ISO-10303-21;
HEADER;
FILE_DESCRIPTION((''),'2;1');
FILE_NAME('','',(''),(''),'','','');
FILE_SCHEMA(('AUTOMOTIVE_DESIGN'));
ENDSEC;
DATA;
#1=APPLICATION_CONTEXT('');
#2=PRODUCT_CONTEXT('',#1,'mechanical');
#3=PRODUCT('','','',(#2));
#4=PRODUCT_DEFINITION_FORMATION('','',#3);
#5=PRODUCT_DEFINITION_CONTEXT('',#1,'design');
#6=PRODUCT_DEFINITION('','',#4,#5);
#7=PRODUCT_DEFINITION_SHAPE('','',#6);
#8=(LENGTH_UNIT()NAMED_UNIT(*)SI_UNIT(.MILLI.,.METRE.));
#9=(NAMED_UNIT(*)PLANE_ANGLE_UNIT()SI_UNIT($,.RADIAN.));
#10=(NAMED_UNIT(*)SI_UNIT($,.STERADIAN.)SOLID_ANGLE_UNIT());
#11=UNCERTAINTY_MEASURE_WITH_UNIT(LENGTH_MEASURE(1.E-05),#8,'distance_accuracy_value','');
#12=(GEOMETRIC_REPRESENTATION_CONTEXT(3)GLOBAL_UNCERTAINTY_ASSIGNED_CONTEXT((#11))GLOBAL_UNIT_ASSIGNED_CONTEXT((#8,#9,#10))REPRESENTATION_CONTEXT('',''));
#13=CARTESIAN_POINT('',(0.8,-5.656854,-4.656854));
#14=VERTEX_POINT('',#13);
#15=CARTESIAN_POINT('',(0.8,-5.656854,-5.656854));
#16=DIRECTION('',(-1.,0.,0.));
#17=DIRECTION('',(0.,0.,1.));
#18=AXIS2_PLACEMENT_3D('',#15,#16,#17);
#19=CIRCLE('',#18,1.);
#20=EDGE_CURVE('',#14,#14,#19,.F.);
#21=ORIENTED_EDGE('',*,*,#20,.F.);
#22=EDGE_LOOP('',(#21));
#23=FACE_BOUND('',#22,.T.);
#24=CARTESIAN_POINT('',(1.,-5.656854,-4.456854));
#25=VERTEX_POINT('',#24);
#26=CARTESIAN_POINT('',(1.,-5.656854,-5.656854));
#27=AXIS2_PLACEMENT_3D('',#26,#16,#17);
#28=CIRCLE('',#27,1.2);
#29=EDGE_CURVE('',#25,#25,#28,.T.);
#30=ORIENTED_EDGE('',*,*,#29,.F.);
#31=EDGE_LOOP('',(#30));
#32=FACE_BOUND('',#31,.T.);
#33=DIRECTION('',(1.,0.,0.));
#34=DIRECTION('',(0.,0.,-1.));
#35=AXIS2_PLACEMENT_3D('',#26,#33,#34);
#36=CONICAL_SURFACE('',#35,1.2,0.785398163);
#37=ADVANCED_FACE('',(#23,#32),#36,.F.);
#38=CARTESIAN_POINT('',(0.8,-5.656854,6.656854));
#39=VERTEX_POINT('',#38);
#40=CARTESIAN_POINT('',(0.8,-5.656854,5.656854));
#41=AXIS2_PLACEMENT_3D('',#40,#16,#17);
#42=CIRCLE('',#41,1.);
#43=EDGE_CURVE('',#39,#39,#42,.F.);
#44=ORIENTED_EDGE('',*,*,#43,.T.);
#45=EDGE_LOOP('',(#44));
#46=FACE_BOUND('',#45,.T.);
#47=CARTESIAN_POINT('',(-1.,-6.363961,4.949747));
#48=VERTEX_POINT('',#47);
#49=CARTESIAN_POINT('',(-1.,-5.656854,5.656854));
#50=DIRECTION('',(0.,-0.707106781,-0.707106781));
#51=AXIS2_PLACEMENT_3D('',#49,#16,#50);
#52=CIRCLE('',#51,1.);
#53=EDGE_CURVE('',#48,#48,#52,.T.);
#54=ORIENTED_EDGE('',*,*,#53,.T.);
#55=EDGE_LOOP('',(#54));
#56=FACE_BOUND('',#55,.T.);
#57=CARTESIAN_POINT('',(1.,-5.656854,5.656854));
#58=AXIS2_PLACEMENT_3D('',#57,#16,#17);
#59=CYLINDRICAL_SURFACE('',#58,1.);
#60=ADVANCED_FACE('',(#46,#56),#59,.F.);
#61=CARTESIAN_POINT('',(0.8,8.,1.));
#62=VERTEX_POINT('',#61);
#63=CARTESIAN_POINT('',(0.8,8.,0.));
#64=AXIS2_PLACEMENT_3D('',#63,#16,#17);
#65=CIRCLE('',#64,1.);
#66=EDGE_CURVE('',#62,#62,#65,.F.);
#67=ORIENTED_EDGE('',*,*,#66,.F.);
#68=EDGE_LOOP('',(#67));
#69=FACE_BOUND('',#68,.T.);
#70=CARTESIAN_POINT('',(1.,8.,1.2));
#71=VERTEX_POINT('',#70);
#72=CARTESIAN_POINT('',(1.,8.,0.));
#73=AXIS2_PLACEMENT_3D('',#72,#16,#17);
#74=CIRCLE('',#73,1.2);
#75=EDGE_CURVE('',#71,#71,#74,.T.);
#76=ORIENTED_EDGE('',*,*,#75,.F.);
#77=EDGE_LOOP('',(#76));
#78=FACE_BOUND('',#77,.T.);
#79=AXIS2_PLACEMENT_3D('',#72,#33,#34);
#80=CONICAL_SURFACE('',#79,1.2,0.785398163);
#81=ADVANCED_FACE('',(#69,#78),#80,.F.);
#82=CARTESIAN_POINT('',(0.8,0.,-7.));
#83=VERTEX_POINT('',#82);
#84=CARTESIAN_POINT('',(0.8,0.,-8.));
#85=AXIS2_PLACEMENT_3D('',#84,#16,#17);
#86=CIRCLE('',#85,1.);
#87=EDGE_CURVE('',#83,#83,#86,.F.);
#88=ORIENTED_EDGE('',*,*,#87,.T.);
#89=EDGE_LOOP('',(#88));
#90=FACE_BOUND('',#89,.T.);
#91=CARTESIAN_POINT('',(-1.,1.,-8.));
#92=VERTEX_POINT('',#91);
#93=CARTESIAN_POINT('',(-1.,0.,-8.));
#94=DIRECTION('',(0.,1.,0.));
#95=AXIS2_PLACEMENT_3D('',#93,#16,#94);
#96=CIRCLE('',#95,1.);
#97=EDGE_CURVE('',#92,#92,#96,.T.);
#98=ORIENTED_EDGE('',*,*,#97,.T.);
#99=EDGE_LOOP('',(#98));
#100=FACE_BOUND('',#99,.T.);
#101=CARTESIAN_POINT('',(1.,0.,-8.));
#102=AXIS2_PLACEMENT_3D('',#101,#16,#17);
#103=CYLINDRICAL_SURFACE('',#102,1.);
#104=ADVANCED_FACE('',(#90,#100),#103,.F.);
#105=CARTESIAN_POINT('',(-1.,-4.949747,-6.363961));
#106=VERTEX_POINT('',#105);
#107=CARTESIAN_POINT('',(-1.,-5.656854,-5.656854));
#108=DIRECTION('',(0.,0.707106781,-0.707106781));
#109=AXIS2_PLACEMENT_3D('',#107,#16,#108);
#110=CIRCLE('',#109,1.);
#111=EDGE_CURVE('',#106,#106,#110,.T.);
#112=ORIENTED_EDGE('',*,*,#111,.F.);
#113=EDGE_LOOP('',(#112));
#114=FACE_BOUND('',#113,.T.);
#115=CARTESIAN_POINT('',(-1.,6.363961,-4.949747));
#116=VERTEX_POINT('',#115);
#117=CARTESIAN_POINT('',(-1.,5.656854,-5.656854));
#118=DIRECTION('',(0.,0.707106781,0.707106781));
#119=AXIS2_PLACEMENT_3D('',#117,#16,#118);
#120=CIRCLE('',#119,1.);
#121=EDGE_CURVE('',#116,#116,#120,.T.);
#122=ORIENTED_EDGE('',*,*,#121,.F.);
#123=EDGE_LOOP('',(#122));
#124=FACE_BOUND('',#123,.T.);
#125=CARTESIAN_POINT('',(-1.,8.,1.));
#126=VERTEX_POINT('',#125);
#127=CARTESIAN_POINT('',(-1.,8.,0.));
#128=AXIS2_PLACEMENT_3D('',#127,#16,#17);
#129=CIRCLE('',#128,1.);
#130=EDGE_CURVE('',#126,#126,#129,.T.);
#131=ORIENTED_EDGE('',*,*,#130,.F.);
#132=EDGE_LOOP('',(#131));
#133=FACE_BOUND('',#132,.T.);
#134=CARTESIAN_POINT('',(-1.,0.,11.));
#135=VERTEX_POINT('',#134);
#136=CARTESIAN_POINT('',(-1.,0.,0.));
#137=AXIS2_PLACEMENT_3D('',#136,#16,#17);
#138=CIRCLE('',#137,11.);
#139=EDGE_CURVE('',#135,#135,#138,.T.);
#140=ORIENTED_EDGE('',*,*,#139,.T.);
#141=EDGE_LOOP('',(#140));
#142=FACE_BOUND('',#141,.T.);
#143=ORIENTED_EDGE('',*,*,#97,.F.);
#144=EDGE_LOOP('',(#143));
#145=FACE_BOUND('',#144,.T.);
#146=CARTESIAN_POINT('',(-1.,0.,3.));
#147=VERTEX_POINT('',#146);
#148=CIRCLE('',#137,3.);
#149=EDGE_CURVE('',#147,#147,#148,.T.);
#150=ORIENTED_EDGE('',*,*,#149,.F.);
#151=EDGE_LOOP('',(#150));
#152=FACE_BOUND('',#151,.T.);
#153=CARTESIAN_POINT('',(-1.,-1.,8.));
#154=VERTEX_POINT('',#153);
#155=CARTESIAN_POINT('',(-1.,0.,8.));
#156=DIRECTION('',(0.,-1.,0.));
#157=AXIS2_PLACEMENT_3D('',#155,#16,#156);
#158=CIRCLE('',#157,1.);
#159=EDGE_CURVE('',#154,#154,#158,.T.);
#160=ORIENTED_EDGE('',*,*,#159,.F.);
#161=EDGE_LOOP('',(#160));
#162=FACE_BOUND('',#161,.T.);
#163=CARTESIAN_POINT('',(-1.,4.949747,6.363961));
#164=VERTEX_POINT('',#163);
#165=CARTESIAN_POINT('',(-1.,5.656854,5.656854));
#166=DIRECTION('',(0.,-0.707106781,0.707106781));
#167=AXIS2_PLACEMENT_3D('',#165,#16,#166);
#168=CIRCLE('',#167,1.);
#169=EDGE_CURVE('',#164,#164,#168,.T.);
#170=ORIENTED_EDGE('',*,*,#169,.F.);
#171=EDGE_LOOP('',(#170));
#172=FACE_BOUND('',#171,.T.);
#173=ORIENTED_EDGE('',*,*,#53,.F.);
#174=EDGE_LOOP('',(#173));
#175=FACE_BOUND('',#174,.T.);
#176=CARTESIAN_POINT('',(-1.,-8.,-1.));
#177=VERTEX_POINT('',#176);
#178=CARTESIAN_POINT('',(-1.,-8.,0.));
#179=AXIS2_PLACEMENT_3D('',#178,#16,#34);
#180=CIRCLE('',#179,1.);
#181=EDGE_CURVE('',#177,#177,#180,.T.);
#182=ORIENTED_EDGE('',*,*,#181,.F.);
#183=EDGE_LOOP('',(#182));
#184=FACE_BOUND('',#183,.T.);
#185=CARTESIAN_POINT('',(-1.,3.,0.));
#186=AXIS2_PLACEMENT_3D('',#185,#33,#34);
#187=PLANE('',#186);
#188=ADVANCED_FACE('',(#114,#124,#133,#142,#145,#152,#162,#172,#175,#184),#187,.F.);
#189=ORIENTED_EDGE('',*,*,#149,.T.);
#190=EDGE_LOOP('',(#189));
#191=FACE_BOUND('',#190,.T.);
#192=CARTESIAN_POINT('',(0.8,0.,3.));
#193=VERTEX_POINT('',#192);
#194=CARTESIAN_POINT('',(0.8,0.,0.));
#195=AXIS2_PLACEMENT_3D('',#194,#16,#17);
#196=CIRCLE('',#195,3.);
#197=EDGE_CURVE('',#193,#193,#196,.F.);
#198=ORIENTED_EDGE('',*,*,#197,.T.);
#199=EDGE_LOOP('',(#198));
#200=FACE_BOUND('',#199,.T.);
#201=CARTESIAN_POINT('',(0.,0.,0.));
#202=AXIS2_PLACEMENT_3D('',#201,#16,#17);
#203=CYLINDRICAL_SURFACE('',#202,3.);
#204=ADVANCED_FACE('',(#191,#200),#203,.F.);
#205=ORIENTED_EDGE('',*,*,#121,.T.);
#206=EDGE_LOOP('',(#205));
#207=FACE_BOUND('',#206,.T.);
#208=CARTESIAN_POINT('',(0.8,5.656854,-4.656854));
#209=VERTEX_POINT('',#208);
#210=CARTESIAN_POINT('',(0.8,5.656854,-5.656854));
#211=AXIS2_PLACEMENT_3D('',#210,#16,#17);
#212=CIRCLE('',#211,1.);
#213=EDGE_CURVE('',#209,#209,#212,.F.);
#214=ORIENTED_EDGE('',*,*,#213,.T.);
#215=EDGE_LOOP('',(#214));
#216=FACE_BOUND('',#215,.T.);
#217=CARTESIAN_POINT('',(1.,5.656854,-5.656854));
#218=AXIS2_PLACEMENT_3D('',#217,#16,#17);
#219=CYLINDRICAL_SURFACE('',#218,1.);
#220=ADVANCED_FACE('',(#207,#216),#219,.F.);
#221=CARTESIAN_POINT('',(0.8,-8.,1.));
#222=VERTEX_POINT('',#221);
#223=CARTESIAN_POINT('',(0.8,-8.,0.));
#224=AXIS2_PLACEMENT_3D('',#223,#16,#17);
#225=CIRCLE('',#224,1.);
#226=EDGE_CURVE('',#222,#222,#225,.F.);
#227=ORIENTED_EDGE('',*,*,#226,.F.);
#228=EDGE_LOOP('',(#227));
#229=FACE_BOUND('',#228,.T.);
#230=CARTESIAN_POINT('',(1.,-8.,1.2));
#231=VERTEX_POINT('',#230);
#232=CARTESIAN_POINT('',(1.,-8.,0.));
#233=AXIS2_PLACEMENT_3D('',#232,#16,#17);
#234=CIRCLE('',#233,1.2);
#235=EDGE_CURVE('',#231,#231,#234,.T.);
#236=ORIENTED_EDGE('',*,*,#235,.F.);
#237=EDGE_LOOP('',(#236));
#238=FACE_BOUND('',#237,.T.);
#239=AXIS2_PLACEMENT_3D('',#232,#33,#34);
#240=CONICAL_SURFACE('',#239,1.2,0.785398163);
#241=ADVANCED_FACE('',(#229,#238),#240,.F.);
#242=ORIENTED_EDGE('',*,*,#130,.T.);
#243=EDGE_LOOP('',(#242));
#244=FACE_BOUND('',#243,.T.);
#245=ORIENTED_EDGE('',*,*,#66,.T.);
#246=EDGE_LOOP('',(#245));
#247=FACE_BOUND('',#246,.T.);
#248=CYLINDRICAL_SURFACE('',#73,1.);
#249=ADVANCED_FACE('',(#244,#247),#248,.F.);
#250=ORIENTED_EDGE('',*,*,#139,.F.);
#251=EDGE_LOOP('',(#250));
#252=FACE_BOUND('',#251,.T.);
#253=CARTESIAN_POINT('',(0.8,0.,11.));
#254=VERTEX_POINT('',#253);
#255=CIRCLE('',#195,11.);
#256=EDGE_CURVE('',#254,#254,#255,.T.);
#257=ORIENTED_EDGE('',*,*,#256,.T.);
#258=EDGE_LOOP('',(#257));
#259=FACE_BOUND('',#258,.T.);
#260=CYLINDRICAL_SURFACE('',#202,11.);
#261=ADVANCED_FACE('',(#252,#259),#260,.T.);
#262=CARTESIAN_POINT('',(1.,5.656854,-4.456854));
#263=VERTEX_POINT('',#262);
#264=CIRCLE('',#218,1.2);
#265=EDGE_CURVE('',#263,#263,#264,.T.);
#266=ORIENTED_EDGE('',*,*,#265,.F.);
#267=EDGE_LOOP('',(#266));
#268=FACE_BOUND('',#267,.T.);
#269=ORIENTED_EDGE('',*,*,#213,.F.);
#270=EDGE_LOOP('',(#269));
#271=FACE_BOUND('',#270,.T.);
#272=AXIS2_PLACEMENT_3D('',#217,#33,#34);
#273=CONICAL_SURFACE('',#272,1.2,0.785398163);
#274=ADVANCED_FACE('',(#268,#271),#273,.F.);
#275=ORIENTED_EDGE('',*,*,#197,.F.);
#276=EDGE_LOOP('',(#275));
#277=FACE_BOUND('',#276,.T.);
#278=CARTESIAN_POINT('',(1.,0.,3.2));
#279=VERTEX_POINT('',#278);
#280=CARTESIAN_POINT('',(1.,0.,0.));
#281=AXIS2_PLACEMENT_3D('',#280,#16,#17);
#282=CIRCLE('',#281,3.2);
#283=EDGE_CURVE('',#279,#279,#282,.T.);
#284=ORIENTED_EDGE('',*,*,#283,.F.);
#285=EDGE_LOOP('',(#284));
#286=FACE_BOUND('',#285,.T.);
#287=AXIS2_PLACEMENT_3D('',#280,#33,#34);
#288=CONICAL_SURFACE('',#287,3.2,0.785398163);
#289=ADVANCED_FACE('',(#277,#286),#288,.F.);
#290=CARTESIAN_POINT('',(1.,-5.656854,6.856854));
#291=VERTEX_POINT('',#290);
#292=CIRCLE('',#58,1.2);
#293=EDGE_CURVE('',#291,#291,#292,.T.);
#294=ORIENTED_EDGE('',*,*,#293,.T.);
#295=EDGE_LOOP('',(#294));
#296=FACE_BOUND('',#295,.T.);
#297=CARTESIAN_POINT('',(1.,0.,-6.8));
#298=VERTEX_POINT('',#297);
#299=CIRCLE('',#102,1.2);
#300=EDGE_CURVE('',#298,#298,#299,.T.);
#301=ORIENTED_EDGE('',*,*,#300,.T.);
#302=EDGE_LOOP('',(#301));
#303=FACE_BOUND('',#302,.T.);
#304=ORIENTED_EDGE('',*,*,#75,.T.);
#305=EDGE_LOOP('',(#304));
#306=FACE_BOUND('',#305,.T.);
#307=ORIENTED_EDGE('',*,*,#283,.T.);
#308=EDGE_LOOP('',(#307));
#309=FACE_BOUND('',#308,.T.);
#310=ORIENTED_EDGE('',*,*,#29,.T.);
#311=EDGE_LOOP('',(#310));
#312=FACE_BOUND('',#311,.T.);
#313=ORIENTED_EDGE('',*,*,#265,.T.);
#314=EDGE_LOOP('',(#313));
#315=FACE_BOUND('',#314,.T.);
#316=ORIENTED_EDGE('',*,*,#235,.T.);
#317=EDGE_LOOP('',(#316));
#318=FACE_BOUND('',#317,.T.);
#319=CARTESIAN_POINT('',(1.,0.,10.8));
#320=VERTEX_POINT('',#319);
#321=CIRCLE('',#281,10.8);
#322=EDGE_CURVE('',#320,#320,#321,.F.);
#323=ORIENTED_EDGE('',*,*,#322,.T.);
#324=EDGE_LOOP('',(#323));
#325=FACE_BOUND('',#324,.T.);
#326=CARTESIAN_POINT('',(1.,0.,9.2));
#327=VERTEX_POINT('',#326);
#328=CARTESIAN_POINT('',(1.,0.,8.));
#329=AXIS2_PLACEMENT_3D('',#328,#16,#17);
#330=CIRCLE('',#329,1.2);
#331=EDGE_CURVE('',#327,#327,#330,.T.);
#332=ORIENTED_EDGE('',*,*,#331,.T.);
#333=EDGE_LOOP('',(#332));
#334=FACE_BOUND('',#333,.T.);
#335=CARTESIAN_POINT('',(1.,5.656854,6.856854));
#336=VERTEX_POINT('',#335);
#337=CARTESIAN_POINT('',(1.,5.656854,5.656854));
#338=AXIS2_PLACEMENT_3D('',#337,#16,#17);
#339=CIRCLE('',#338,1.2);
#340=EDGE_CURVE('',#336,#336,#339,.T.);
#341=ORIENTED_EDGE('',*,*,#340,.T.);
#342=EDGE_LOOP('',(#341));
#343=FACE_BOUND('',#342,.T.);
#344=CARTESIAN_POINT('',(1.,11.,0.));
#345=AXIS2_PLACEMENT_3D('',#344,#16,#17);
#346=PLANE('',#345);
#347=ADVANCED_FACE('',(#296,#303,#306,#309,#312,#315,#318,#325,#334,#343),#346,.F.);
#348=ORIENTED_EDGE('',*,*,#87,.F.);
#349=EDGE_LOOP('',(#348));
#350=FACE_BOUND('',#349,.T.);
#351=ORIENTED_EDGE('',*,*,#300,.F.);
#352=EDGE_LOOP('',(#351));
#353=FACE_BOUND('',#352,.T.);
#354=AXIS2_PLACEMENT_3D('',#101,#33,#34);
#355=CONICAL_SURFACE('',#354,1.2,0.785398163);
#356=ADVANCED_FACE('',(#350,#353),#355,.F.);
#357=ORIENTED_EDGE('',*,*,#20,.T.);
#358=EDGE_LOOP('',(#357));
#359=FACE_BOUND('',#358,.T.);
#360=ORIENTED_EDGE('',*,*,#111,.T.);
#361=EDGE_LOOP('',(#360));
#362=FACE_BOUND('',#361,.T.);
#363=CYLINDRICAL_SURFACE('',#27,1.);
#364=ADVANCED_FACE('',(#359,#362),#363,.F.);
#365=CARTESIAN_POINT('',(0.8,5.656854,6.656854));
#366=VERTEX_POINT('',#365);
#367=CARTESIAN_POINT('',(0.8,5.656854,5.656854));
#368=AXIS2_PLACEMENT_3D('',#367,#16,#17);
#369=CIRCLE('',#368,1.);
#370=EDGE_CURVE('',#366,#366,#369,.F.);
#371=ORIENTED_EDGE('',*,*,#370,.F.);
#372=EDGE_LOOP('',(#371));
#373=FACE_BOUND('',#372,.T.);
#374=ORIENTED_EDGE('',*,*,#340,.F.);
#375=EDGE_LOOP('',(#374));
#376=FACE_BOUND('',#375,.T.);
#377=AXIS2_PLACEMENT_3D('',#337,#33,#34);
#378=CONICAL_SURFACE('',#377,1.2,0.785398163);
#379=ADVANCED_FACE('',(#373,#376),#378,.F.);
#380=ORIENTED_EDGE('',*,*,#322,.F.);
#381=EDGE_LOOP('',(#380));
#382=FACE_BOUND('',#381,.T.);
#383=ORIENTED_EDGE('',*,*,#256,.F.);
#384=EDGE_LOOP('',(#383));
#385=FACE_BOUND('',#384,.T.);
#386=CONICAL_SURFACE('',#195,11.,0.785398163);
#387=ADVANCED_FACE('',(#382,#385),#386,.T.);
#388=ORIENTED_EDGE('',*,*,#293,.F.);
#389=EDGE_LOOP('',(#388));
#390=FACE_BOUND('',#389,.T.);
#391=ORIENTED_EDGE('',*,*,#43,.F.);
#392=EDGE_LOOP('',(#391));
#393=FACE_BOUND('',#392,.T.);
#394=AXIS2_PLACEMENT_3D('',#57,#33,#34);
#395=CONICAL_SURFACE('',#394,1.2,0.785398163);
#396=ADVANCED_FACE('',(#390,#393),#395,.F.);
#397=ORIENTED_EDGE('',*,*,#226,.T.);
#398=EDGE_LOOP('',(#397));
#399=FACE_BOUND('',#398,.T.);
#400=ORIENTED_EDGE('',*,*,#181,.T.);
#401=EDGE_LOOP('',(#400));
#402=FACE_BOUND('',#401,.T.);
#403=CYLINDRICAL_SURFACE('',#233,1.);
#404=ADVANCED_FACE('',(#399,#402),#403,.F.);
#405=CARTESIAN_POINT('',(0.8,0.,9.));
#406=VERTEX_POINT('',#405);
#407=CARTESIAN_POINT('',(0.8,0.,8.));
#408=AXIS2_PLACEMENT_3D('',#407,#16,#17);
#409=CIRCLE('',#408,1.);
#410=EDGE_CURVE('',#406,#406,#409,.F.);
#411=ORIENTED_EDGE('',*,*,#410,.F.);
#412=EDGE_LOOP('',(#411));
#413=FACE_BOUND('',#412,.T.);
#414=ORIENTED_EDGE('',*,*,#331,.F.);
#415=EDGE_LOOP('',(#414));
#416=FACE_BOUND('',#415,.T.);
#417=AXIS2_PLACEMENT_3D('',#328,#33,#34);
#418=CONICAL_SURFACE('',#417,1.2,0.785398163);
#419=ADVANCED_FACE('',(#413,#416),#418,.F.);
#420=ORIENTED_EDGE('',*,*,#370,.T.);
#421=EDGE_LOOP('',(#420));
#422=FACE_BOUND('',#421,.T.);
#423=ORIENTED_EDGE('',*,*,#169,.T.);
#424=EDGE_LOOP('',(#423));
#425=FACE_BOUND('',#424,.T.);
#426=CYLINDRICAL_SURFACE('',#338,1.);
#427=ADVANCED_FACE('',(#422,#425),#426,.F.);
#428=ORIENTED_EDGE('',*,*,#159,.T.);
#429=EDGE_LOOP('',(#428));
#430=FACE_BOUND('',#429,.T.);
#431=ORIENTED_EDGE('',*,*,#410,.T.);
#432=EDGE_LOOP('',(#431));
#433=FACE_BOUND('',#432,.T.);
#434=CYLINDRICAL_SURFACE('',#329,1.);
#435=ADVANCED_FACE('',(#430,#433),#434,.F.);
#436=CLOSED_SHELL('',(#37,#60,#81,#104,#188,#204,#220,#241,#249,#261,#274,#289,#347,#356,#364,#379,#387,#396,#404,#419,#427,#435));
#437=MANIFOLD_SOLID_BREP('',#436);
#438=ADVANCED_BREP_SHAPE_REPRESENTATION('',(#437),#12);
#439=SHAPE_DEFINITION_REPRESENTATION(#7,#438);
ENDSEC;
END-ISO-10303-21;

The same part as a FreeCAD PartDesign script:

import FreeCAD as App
import Part
import Sketcher

V = App.Vector
Q = App.Units.Quantity


def edges_at(feature, points):
    """Names of the edges that pass closest to the given points."""
    edges = feature.Shape.Edges
    near = lambda p: min(range(len(edges)), key=lambda i: edges[i].distToShape(Part.Vertex(*p))[0])
    return sorted({f"Edge{near(p) + 1}" for p in points})

doc = App.newDocument("Part")
body = doc.addObject("PartDesign::Body", "Body")

sketch1 = body.newObject("Sketcher::SketchObject", "Sketch")
sketch1.AttachmentSupport = (doc.getObject("XY_Plane"), [""])
sketch1.MapMode = "FlatFace"
sketch1.addGeometry([
    Part.LineSegment(V(-1, 11, 0), V(-1, 3, 0)),
    Part.LineSegment(V(-1, 3, 0), V(1, 3, 0)),
    Part.LineSegment(V(1, 3, 0), V(1, 11, 0)),
    Part.LineSegment(V(1, 11, 0), V(-1, 11, 0)),
], False)
sketch1.addConstraint([
    Sketcher.Constraint("Coincident", 0, 2, 1, 1),
    Sketcher.Constraint("Coincident", 1, 2, 2, 1),
    Sketcher.Constraint("Coincident", 2, 2, 3, 1),
    Sketcher.Constraint("Coincident", 3, 2, 0, 1),
    Sketcher.Constraint("Vertical", 0),
    Sketcher.Constraint("Horizontal", 1),
    Sketcher.Constraint("Vertical", 2),
    Sketcher.Constraint("Horizontal", 3),
    Sketcher.Constraint("DistanceX", 1, 1, 1, 2, Q("2 mm")),
    Sketcher.Constraint("DistanceY", 0, 2, 0, 1, Q("8 mm")),
    Sketcher.Constraint("DistanceX", 0, 2, -1, 1, Q("1 mm")),
    Sketcher.Constraint("DistanceY", -1, 1, 0, 2, Q("3 mm")),
])
revolution = body.newObject("PartDesign::Revolution", "Revolution")
revolution.Profile = sketch1
revolution.ReferenceAxis = (sketch1, ["H_Axis"])
revolution.Angle = 360

sketch2 = body.newObject("Sketcher::SketchObject", "Sketch001")
sketch2.AttachmentSupport = (doc.getObject("YZ_Plane"), [""])
sketch2.MapMode = "FlatFace"
sketch2.AttachmentOffset = App.Placement(V(0, 0, -1), App.Rotation())
sketch2.addGeometry(Part.Circle(V(8, 0, 0), V(0, 0, 1), 1), False)
sketch2.addConstraint([
    Sketcher.Constraint("PointOnObject", 0, 3, -1),
    Sketcher.Constraint("Diameter", 0, Q("2 mm")),
    Sketcher.Constraint("DistanceX", -1, 1, 0, 3, Q("8 mm")),
])
pocket1 = body.newObject("PartDesign::Pocket", "Pocket")
pocket1.Profile = sketch2
pocket1.Type = "ThroughAll"
pocket1.Reversed = True
doc.recompute()

polarpattern = body.newObject("PartDesign::PolarPattern", "PolarPattern")
polarpattern.Originals = [pocket1]
polarpattern.Axis = (doc.getObject("X_Axis"), [""])
polarpattern.Angle = 360
polarpattern.Occurrences = 8
body.Tip = polarpattern
doc.recompute()

chamfer = body.newObject("PartDesign::Chamfer", "Chamfer")
chamfer.Base = (polarpattern, edges_at(polarpattern, [
    (1, 8, -1),
    (1, 4.95, -6.364),
    (1, -1, -8),
    (1, -6.364, -4.95),
    (1, -8, 1),
    (1, -4.95, 6.364),
    (1, 1, 8),
    (1, 0, -3),
    (1, 0, -11),
    (1, 6.364, 4.95),
]))
chamfer.Size = 0.2

doc.recompute()
